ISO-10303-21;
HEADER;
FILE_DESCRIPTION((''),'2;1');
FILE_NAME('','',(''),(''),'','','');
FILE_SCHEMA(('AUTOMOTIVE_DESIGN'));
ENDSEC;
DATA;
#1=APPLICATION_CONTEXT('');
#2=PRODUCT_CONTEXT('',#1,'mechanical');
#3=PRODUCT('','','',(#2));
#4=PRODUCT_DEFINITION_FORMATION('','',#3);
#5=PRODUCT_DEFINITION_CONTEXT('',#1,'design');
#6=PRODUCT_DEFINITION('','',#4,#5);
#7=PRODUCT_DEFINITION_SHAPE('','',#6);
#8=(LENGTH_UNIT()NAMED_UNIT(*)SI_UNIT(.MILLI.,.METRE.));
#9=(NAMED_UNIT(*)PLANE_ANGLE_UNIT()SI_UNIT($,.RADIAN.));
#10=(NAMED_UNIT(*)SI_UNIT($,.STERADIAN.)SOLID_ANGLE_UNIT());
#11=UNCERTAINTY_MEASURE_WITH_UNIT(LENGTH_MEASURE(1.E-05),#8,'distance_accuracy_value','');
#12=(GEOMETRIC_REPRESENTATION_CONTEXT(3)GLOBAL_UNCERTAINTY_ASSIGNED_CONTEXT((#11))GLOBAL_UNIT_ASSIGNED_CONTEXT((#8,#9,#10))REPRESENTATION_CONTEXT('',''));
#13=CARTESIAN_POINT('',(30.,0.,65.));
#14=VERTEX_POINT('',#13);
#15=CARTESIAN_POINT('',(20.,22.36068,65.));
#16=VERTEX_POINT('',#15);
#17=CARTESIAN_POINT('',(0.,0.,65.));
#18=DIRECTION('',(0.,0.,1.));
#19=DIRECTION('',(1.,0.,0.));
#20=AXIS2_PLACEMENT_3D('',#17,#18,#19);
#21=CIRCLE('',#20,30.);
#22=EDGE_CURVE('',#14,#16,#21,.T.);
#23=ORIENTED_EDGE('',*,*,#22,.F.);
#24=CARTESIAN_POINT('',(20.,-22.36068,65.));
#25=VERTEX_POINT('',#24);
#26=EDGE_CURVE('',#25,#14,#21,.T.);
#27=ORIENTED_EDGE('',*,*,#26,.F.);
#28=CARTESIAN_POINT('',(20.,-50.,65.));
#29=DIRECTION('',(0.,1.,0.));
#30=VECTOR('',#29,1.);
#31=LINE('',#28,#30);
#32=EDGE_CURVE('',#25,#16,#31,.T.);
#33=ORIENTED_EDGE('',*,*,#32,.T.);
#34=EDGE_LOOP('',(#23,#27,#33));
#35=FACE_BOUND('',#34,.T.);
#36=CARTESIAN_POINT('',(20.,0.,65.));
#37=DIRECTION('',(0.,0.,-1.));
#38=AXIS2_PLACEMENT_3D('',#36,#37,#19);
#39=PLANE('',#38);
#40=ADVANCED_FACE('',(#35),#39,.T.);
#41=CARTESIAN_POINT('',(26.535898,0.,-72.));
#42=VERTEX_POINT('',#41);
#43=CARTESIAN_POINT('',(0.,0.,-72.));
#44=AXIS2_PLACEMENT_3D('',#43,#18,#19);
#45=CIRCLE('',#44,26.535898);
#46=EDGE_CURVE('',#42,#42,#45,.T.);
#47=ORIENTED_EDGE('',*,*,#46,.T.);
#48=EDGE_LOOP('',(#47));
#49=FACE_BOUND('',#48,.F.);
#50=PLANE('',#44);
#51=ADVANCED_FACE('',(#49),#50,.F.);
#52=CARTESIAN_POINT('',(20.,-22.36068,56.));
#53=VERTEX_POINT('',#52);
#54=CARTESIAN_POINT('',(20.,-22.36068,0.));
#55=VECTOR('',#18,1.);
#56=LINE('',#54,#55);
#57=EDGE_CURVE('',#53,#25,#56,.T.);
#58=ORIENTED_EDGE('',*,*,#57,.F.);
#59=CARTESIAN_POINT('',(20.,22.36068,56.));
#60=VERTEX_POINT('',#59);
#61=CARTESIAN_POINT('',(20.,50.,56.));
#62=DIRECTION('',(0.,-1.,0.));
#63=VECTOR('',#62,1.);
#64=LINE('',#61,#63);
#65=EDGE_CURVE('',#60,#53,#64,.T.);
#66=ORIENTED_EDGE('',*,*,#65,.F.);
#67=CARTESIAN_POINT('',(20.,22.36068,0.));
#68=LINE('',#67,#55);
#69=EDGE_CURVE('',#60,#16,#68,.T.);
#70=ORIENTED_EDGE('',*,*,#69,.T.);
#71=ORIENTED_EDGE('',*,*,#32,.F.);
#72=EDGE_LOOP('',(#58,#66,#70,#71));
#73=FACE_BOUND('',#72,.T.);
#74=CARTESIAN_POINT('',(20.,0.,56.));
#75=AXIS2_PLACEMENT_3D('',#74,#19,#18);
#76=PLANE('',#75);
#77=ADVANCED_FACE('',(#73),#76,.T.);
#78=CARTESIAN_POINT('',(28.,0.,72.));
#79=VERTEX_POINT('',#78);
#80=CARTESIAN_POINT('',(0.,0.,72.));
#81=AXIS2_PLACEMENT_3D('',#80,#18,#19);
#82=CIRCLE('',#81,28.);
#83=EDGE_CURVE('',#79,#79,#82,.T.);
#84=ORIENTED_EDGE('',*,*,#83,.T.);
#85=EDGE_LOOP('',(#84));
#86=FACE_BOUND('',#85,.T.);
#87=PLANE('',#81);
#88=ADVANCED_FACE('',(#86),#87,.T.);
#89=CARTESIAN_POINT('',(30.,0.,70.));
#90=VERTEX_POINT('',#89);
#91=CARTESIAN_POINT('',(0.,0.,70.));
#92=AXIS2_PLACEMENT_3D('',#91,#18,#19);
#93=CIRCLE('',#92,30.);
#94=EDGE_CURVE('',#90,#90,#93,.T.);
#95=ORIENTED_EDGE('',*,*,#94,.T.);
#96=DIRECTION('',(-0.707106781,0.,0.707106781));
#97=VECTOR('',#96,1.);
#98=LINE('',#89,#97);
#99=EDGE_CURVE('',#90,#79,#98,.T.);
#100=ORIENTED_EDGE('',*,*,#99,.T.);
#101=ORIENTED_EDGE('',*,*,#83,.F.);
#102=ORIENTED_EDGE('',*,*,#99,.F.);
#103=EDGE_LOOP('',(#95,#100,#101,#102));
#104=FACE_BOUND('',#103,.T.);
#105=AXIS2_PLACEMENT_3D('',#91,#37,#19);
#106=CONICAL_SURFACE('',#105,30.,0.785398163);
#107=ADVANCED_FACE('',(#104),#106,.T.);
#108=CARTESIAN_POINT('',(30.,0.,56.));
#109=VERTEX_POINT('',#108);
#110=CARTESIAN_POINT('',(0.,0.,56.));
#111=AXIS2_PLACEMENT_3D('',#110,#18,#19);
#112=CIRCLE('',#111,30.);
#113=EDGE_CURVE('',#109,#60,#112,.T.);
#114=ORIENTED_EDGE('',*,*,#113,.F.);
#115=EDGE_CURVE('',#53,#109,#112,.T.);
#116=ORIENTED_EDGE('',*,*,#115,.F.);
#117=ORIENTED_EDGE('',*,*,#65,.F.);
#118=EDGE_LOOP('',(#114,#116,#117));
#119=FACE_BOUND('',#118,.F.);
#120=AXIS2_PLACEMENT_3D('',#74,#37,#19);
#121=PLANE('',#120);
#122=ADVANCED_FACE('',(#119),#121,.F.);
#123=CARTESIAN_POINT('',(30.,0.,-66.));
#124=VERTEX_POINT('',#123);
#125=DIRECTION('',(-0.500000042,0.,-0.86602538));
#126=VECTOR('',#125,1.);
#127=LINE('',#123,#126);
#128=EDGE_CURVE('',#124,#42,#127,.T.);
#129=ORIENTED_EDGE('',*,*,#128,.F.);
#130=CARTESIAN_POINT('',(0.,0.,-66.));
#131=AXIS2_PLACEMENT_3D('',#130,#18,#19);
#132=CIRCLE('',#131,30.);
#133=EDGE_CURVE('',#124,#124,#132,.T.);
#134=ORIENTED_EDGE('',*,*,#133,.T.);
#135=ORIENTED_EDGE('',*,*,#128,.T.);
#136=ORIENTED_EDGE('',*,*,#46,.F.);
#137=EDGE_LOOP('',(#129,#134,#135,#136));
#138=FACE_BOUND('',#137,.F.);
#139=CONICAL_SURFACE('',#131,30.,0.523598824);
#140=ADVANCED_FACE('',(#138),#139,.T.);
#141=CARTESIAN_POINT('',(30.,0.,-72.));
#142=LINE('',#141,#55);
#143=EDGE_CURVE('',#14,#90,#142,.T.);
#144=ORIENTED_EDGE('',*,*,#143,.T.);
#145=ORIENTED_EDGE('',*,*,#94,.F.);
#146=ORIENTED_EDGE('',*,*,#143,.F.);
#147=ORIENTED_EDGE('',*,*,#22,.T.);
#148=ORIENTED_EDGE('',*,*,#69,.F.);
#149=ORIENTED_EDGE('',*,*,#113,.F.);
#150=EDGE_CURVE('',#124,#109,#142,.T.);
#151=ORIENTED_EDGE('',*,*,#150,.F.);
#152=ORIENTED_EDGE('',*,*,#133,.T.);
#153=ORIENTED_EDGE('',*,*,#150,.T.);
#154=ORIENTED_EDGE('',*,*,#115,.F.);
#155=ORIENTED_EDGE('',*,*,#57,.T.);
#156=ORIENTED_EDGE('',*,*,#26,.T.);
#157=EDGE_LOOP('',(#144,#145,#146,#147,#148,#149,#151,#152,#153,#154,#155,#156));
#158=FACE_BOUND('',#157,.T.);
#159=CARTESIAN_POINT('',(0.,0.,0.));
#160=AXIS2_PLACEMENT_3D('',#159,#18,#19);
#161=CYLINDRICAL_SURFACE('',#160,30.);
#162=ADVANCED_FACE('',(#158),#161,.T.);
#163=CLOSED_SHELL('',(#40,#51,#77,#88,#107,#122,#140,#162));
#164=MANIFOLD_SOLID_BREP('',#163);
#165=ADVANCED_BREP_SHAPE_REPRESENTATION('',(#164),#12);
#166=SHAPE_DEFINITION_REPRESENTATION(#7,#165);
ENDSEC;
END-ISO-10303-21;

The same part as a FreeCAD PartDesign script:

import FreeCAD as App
import Part
import Sketcher

V = App.Vector
Q = App.Units.Quantity


def edges_at(feature, points):
    """Names of the edges that pass closest to the given points."""
    edges = feature.Shape.Edges
    near = lambda p: min(range(len(edges)), key=lambda i: edges[i].distToShape(Part.Vertex(*p))[0])
    return sorted({f"Edge{near(p) + 1}" for p in points})


def add_polygon(sketch, points):
    """Adds a closed chain of lines whose ends are joined by coincident constraints."""
    first, n = sketch.GeometryCount, len(points)
    for a, b in zip(points, points[1:] + points[:1]):
        sketch.addGeometry(Part.LineSegment(App.Vector(*a, 0), App.Vector(*b, 0)), False)
    for i in range(n):
        sketch.addConstraint(Sketcher.Constraint("Coincident", first + i, 2, first + (i + 1) % n, 1))

doc = App.newDocument("Part")
params = doc.addObject("Spreadsheet::Sheet", "Params")
for row, (alias, value) in enumerate([
    ("sketch1_diameter", "60 mm"),
    ("pad1_length", "144 mm"),
    ("chamfer_size", "2 mm"),
    ("chamfer2_size", "6 mm"),
    ("chamfer2_size2", "3.464102 mm"),
    ("sketch2_width", "15 mm"),
    ("sketch2_height", "9 mm"),
    ("pocket1_length", "100 mm"),
], start=1):
    params.set(f"A{row}", alias)
    params.set(f"B{row}", "=" + value)
    params.setAlias(f"B{row}", alias)

body = doc.addObject("PartDesign::Body", "Body")

sketch1 = body.newObject("Sketcher::SketchObject", "Sketch")
sketch1.AttachmentSupport = (doc.getObject("XY_Plane"), [""])
sketch1.MapMode = "FlatFace"
sketch1.addGeometry(Part.Circle(V(0, 0, 0), V(0, 0, 1), 30), False)
sketch1.addConstraint([
    Sketcher.Constraint("Coincident", 0, 3, -1, 1),
    Sketcher.Constraint("Diameter", 0, Q("60 mm")),
])
sketch1.setExpression("Constraints[1]", "Params.sketch1_diameter")
pad1 = body.newObject("PartDesign::Pad", "Pad")
pad1.Profile = sketch1
pad1.setExpression("Length", "Params.pad1_length")
pad1.Midplane = True
doc.recompute()

chamfer = body.newObject("PartDesign::Chamfer", "Chamfer")
chamfer.Base = (pad1, edges_at(pad1, [(-30, 0, 72)]))
chamfer.setExpression("Size", "Params.chamfer_size")
doc.recompute()

chamfer2 = body.newObject("PartDesign::Chamfer", "Chamfer001")
chamfer2.Base = (chamfer, edges_at(chamfer, [(-30, 0, -72)]))
chamfer2.ChamferType = "Two distances"
chamfer2.setExpression("Size", "Params.chamfer2_size")
chamfer2.setExpression("Size2", "Params.chamfer2_size2")

sketch2 = body.newObject("Sketcher::SketchObject", "Sketch001")
sketch2.AttachmentSupport = (doc.getObject("XZ_Plane"), [""])
sketch2.MapMode = "FlatFace"
add_polygon(sketch2, [(20, 65), (20, 56), (35, 56), (35, 65)])
sketch2.addConstraint([
    Sketcher.Constraint("Vertical", 0),
    Sketcher.Constraint("Horizontal", 1),
    Sketcher.Constraint("Vertical", 2),
    Sketcher.Constraint("Horizontal", 3),
    Sketcher.Constraint("DistanceX", 1, 1, 1, 2, Q("15 mm")),
    Sketcher.Constraint("DistanceY", 0, 2, 0, 1, Q("9 mm")),
    Sketcher.Constraint("DistanceX", -1, 1, 0, 2, Q("20 mm")),
    Sketcher.Constraint("DistanceY", -1, 1, 0, 2, Q("56 mm")),
])
sketch2.setExpression("Constraints[8]", "Params.sketch2_width")
sketch2.setExpression("Constraints[9]", "Params.sketch2_height")
pocket1 = body.newObject("PartDesign::Pocket", "Pocket")
pocket1.Profile = sketch2
pocket1.setExpression("Length", "Params.pocket1_length")
pocket1.Midplane = True

doc.recompute()
